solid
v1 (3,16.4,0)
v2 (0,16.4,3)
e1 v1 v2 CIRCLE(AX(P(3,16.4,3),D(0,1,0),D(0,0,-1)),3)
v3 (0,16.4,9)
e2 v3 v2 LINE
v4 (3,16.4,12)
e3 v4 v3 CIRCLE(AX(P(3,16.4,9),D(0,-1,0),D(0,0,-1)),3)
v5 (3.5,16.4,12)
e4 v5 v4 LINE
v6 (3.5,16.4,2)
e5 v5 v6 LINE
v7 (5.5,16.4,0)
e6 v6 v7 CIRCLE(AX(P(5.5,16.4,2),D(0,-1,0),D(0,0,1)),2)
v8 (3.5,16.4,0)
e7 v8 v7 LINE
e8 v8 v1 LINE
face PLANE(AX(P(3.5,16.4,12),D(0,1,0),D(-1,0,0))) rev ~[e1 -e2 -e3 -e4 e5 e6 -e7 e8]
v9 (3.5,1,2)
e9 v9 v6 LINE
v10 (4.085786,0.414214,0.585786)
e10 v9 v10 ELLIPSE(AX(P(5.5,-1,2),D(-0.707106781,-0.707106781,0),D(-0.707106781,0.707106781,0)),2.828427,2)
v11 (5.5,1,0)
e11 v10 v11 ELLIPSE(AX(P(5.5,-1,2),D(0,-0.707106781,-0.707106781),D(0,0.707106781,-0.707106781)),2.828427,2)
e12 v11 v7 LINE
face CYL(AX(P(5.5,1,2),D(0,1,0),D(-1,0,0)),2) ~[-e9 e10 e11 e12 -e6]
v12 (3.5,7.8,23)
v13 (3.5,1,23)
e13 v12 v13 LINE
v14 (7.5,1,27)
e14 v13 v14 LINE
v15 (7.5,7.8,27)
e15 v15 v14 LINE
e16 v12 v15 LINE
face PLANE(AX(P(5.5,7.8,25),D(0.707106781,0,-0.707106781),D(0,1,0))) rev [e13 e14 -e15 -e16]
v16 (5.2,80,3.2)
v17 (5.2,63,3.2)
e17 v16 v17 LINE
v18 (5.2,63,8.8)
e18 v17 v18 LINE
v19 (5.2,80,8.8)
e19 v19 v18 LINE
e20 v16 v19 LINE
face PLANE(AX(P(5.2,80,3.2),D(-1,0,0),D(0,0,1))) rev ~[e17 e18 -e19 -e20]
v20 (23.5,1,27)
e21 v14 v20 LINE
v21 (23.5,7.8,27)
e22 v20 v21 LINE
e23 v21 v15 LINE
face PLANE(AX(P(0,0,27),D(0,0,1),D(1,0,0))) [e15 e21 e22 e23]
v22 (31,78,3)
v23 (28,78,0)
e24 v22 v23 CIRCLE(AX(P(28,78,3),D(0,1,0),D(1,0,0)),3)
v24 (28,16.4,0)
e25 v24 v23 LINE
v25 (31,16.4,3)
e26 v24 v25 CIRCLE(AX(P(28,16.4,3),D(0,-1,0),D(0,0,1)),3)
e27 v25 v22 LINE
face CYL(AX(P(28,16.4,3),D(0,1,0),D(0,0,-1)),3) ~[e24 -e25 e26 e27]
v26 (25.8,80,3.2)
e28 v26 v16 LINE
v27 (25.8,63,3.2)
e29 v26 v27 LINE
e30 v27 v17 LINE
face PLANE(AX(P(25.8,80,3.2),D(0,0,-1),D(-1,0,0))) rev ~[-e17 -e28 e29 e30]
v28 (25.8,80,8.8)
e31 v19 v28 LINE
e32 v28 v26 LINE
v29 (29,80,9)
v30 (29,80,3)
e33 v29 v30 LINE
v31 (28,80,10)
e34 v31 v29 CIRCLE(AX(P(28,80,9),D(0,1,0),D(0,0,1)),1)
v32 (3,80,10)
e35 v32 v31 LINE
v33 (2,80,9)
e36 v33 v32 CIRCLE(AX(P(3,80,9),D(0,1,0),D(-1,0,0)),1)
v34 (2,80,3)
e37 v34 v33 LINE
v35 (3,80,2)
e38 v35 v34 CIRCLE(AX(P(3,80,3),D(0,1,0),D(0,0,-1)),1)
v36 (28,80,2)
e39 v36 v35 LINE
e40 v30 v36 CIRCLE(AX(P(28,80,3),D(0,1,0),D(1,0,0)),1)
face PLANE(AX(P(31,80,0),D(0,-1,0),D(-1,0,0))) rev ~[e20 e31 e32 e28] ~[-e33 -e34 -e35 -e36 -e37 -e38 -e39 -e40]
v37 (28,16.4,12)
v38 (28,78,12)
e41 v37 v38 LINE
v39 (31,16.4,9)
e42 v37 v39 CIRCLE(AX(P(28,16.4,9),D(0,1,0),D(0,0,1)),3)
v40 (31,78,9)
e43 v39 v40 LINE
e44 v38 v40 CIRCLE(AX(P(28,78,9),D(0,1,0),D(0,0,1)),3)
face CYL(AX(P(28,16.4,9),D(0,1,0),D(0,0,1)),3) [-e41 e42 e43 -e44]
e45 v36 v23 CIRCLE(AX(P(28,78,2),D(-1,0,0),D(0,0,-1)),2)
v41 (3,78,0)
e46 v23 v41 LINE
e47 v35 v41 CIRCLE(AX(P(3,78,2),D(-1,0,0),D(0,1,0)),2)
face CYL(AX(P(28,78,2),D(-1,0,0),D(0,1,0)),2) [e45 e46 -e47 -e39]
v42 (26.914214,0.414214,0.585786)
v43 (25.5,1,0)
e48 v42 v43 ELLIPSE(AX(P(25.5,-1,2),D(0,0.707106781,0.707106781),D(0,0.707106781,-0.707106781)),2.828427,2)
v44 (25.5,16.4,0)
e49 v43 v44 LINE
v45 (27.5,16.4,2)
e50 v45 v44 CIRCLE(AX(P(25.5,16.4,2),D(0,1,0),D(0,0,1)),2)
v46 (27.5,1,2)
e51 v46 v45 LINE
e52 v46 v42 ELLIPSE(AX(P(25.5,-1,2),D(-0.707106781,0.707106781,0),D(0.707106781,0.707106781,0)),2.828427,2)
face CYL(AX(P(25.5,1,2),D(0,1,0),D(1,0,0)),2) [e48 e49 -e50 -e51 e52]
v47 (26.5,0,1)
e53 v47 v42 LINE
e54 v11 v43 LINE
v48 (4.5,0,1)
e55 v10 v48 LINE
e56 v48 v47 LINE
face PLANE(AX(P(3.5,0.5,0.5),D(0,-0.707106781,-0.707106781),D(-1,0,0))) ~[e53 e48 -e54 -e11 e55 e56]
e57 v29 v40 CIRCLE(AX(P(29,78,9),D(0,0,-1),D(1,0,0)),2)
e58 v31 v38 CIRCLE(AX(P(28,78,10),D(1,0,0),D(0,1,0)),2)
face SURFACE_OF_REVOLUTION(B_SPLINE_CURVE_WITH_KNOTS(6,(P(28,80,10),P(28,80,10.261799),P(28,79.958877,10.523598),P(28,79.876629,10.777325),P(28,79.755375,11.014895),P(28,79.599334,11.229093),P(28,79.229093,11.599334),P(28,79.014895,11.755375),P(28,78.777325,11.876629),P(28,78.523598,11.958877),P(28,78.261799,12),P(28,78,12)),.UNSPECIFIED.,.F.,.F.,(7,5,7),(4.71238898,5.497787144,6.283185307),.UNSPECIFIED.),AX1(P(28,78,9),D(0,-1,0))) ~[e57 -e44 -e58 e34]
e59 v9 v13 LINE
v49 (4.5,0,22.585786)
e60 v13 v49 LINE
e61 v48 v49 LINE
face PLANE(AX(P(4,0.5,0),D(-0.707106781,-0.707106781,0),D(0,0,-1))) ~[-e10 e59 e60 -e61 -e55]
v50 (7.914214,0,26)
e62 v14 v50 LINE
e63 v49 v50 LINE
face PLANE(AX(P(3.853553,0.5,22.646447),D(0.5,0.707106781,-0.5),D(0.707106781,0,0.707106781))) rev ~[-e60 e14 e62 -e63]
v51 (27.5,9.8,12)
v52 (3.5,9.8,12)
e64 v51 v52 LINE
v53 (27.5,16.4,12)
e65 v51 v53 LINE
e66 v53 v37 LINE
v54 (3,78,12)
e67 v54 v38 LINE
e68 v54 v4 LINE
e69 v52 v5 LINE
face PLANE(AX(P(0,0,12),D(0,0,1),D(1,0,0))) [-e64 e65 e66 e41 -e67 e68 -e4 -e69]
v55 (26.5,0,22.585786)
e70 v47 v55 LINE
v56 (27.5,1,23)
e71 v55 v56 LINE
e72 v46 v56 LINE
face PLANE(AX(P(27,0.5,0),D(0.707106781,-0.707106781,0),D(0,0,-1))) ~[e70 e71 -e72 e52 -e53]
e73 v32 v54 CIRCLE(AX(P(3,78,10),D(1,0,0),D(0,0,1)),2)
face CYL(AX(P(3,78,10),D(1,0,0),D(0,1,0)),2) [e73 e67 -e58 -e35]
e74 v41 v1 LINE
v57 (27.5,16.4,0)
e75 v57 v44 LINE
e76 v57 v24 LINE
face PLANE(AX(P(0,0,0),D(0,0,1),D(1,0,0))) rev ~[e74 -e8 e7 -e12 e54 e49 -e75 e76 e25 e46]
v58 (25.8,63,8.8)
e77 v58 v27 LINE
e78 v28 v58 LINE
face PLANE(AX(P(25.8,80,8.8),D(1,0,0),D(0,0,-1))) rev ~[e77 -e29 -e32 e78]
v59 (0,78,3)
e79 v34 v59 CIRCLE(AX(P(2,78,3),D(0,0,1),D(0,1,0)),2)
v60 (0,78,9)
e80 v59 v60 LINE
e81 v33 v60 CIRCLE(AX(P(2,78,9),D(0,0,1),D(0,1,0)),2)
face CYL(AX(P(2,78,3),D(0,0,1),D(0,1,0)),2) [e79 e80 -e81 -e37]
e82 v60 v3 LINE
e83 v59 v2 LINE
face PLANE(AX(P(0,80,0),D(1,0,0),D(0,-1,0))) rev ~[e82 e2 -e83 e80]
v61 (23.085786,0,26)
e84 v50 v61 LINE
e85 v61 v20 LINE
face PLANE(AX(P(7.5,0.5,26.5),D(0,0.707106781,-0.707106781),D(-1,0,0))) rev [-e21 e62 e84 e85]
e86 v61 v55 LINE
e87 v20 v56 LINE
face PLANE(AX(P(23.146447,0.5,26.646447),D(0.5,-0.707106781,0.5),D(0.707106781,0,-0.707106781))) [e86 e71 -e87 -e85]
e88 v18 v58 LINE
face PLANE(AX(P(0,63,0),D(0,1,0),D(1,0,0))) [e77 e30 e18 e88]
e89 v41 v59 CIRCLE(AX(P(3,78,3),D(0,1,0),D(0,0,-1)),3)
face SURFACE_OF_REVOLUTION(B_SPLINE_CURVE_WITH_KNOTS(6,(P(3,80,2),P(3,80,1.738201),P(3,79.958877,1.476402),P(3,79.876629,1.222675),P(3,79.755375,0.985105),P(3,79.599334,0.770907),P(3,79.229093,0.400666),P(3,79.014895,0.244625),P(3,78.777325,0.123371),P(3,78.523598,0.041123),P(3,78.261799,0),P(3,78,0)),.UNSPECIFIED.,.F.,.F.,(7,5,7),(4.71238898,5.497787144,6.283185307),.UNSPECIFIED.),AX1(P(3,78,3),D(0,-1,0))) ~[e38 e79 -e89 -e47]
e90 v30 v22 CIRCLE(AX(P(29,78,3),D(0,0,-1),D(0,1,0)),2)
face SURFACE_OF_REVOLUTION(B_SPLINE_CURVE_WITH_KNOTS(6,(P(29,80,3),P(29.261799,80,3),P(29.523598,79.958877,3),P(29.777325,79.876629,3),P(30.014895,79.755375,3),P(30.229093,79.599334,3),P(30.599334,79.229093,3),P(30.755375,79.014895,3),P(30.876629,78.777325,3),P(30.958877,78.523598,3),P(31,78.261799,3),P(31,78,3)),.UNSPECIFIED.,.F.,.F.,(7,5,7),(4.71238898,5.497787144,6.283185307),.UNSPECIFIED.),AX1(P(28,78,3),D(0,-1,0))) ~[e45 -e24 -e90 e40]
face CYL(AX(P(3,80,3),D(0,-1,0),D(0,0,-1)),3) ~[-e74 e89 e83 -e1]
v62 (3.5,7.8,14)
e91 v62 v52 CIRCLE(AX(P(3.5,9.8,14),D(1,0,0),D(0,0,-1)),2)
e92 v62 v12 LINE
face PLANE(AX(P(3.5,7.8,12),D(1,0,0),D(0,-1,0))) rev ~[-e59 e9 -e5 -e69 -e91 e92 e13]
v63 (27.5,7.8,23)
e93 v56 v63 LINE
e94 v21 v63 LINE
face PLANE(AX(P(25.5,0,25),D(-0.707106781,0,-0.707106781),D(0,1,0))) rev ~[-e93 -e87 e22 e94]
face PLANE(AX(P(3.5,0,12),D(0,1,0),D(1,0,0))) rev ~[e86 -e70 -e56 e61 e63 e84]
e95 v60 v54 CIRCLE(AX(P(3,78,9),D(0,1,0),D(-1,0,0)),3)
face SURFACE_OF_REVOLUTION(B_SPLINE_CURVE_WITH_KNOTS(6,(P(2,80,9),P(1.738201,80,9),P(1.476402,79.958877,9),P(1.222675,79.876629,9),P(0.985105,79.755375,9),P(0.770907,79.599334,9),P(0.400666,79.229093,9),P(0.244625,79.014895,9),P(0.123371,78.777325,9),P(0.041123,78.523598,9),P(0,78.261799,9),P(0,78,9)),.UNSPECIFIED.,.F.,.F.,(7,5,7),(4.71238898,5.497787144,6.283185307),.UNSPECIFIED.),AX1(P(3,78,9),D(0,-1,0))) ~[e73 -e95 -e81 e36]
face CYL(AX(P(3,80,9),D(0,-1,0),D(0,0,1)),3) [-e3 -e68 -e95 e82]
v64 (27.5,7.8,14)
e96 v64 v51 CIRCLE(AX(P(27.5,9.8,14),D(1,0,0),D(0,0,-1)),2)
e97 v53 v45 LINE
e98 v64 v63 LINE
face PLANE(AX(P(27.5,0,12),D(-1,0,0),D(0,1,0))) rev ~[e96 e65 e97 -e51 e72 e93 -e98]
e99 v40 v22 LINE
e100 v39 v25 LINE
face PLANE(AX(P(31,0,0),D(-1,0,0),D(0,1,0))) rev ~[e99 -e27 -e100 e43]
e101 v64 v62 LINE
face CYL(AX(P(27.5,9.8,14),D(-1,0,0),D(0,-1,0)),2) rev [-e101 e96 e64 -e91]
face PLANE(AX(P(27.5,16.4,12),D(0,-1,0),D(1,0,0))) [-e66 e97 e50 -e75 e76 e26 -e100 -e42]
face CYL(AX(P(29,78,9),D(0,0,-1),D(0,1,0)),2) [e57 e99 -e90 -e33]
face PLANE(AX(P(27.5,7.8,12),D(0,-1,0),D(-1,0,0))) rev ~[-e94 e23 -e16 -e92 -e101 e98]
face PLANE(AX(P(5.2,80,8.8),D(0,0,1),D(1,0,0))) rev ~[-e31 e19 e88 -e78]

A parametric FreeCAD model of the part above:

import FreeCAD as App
import Part
import Sketcher


def edges_at(feature, points):
    """Names of the edges that pass closest to the given points."""
    edges = feature.Shape.Edges
    near = lambda p: min(range(len(edges)), key=lambda i: edges[i].distToShape(Part.Vertex(*p))[0])
    return sorted({f"Edge{near(p) + 1}" for p in points})

doc = App.newDocument("Part")
body = doc.addObject("PartDesign::Body", "Body")

sketch1 = body.newObject("Sketcher::SketchObject", "Sketch")
sketch1.AttachmentSupport = (doc.getObject("XY_Plane"), [""])
sketch1.MapMode = "FlatFace"
sketch1.addGeometry(Part.LineSegment(App.Vector(0, 80, 0), App.Vector(0, 0, 0)), False)
sketch1.addGeometry(Part.LineSegment(App.Vector(0, 0, 0), App.Vector(31, 0, 0)), False)
sketch1.addGeometry(Part.LineSegment(App.Vector(31, 0, 0), App.Vector(31, 80, 0)), False)
sketch1.addGeometry(Part.LineSegment(App.Vector(31, 80, 0), App.Vector(0, 80, 0)), False)
sketch1.addConstraint(Sketcher.Constraint("Coincident", 0, 2, 1, 1))
sketch1.addConstraint(Sketcher.Constraint("Coincident", 1, 2, 2, 1))
sketch1.addConstraint(Sketcher.Constraint("Coincident", 2, 2, 3, 1))
sketch1.addConstraint(Sketcher.Constraint("Coincident", 3, 2, 0, 1))
sketch1.addConstraint(Sketcher.Constraint("Vertical", 0))
sketch1.addConstraint(Sketcher.Constraint("Horizontal", 1))
sketch1.addConstraint(Sketcher.Constraint("Vertical", 2))
sketch1.addConstraint(Sketcher.Constraint("Horizontal", 3))
sketch1.addConstraint(Sketcher.Constraint("Coincident", 0, 2, -1, 1))
sketch1.addConstraint(Sketcher.Constraint("DistanceX", 1, 1, 1, 2, 31.0))
sketch1.addConstraint(Sketcher.Constraint("DistanceY", 0, 2, 0, 1, 80.0))
pad1 = body.newObject("PartDesign::Pad", "Pad")
pad1.Profile = sketch1
pad1.Length = 12

sketch2 = body.newObject("Sketcher::SketchObject", "Sketch001")
sketch2.AttachmentSupport = (doc.getObject("XY_Plane"), [""])
sketch2.MapMode = "FlatFace"
sketch2.AttachmentOffset = App.Placement(App.Vector(0, 0, 12), App.Rotation())
sketch2.addGeometry(Part.LineSegment(App.Vector(3.5, 16.4, 0), App.Vector(0, 16.4, 0)), False)
sketch2.addGeometry(Part.LineSegment(App.Vector(0, 16.4, 0), App.Vector(0, 0, 0)), False)
sketch2.addGeometry(Part.LineSegment(App.Vector(0, 0, 0), App.Vector(3.5, 0, 0)), False)
sketch2.addGeometry(Part.LineSegment(App.Vector(3.5, 0, 0), App.Vector(3.5, 16.4, 0)), False)
sketch2.addGeometry(Part.LineSegment(App.Vector(27.5, 16.4, 0), App.Vector(27.5, 0, 0)), False)
sketch2.addGeometry(Part.LineSegment(App.Vector(27.5, 0, 0), App.Vector(31, 0, 0)), False)
sketch2.addGeometry(Part.LineSegment(App.Vector(31, 0, 0), App.Vector(31, 16.4, 0)), False)
sketch2.addGeometry(Part.LineSegment(App.Vector(31, 16.4, 0), App.Vector(27.5, 16.4, 0)), False)
sketch2.addConstraint(Sketcher.Constraint("Coincident", 0, 2, 1, 1))
sketch2.addConstraint(Sketcher.Constraint("Coincident", 1, 2, 2, 1))
sketch2.addConstraint(Sketcher.Constraint("Coincident", 2, 2, 3, 1))
sketch2.addConstraint(Sketcher.Constraint("Coincident", 3, 2, 0, 1))
sketch2.addConstraint(Sketcher.Constraint("Coincident", 4, 2, 5, 1))
sketch2.addConstraint(Sketcher.Constraint("Coincident", 5, 2, 6, 1))
sketch2.addConstraint(Sketcher.Constraint("Coincident", 6, 2, 7, 1))
sketch2.addConstraint(Sketcher.Constraint("Coincident", 7, 2, 4, 1))
sketch2.addConstraint(Sketcher.Constraint("Horizontal", 0))
sketch2.addConstraint(Sketcher.Constraint("Vertical", 1))
sketch2.addConstraint(Sketcher.Constraint("Horizontal", 2))
sketch2.addConstraint(Sketcher.Constraint("Vertical", 3))
sketch2.addConstraint(Sketcher.Constraint("Vertical", 4))
sketch2.addConstraint(Sketcher.Constraint("Horizontal", 5))
sketch2.addConstraint(Sketcher.Constraint("Vertical", 6))
sketch2.addConstraint(Sketcher.Constraint("Horizontal", 7))
sketch2.addConstraint(Sketcher.Constraint("Coincident", 1, 2, -1, 1))
sketch2.addConstraint(Sketcher.Constraint("PointOnObject", 4, 2, -1))
sketch2.addConstraint(Sketcher.Constraint("Horizontal", 3, 2, 6, 2))
sketch2.addConstraint(Sketcher.Constraint("Equal", 2, 5))
sketch2.addConstraint(Sketcher.Constraint("DistanceY", 1, 2, 1, 1, 16.4))
sketch2.addConstraint(Sketcher.Constraint("DistanceX", 2, 2, 4, 2, 24.0))
sketch2.addConstraint(Sketcher.Constraint("DistanceX", 0, 2, 0, 1, 3.5))
pocket1 = body.newObject("PartDesign::Pocket", "Pocket")
pocket1.Profile = sketch2
pocket1.Length = 12

sketch3 = body.newObject("Sketcher::SketchObject", "Sketch002")
sketch3.AttachmentSupport = (doc.getObject("XY_Plane"), [""])
sketch3.MapMode = "FlatFace"
sketch3.AttachmentOffset = App.Placement(App.Vector(0, 0, 12), App.Rotation())
sketch3.addGeometry(Part.LineSegment(App.Vector(4, 8, 0), App.Vector(4, 0, 0)), False)
sketch3.addGeometry(Part.LineSegment(App.Vector(4, 0, 0), App.Vector(28, 0, 0)), False)
sketch3.addGeometry(Part.LineSegment(App.Vector(28, 0, 0), App.Vector(28, 8, 0)), False)
sketch3.addGeometry(Part.LineSegment(App.Vector(28, 8, 0), App.Vector(4, 8, 0)), False)
sketch3.addConstraint(Sketcher.Constraint("Coincident", 0, 2, 1, 1))
sketch3.addConstraint(Sketcher.Constraint("Coincident", 1, 2, 2, 1))
sketch3.addConstraint(Sketcher.Constraint("Coincident", 2, 2, 3, 1))
sketch3.addConstraint(Sketcher.Constraint("Coincident", 3, 2, 0, 1))
sketch3.addConstraint(Sketcher.Constraint("Vertical", 0))
sketch3.addConstraint(Sketcher.Constraint("Horizontal", 1))
sketch3.addConstraint(Sketcher.Constraint("Vertical", 2))
sketch3.addConstraint(Sketcher.Constraint("Horizontal", 3))
sketch3.addConstraint(Sketcher.Constraint("PointOnObject", 0, 2, -1))
sketch3.addConstraint(Sketcher.Constraint("DistanceY", 0, 2, 0, 1, 7.8))
sketch3.addConstraint(Sketcher.Constraint("DistanceX", 1, 1, 1, 2, 24.0))
sketch3.addConstraint(Sketcher.Constraint("DistanceX", -1, 1, 0, 2, 3.5))
pad2 = body.newObject("PartDesign::Pad", "Pad001")
pad2.Profile = sketch3
pad2.Length = 15

sketch4 = body.newObject("Sketcher::SketchObject", "Sketch003")
sketch4.AttachmentSupport = (doc.getObject("XZ_Plane"), [""])
sketch4.MapMode = "FlatFace"
sketch4.AttachmentOffset = App.Placement(App.Vector(0, 0, -80), App.Rotation())
sketch4.addGeometry(Part.LineSegment(App.Vector(5, 3, 0), App.Vector(5, 9, 0)), False)
sketch4.addGeometry(Part.LineSegment(App.Vector(5, 9, 0), App.Vector(26, 9, 0)), False)
sketch4.addGeometry(Part.LineSegment(App.Vector(26, 9, 0), App.Vector(26, 3, 0)), False)
sketch4.addGeometry(Part.LineSegment(App.Vector(26, 3, 0), App.Vector(5, 3, 0)), False)
sketch4.addConstraint(Sketcher.Constraint("Coincident", 0, 2, 1, 1))
sketch4.addConstraint(Sketcher.Constraint("Coincident", 1, 2, 2, 1))
sketch4.addConstraint(Sketcher.Constraint("Coincident", 2, 2, 3, 1))
sketch4.addConstraint(Sketcher.Constraint("Coincident", 3, 2, 0, 1))
sketch4.addConstraint(Sketcher.Constraint("Vertical", 0))
sketch4.addConstraint(Sketcher.Constraint("Horizontal", 1))
sketch4.addConstraint(Sketcher.Constraint("Vertical", 2))
sketch4.addConstraint(Sketcher.Constraint("Horizontal", 3))
sketch4.addConstraint(Sketcher.Constraint("DistanceX", 1, 1, 1, 2, 20.6))
sketch4.addConstraint(Sketcher.Constraint("DistanceY", 0, 1, 0, 2, 5.6))
sketch4.addConstraint(Sketcher.Constraint("DistanceX", -1, 1, 0, 2, 5.2))
sketch4.addConstraint(Sketcher.Constraint("DistanceY", -1, 1, 0, 2, 8.8))
pocket2 = body.newObject("PartDesign::Pocket", "Pocket001")
pocket2.Profile = sketch4
pocket2.Length = 17
pocket2.Reversed = True
doc.recompute()

chamfer = body.newObject("PartDesign::Chamfer", "Chamfer")
chamfer.Base = (pocket2, edges_at(pocket2, [(3.5, 3.9, 27), (27.5, 3.9, 27)]))
chamfer.Size = 4
doc.recompute()

chamfer2 = body.newObject("PartDesign::Chamfer", "Chamfer001")
chamfer2.Base = (chamfer, edges_at(chamfer, [
    (3.5, 0, 11.5),
    (5.5, 0, 25),
    (15.5, 0, 27),
    (25.5, 0, 25),
    (27.5, 0, 11.5),
    (15.5, 0, 0),
]))
chamfer2.Size = 1
doc.recompute()

fillet = body.newObject("PartDesign::Fillet", "Fillet")
fillet.Base = (chamfer2, edges_at(chamfer2, [(15.5, 7.8, 12)]))
fillet.Radius = 2
doc.recompute()

fillet2 = body.newObject("PartDesign::Fillet", "Fillet001")
fillet2.Base = (fillet, edges_at(fillet, [
    (0, 48.2, 12),
    (31, 48.2, 12),
    (31, 48.2, 0),
    (0, 48.2, 0),
]))
fillet2.Radius = 3
doc.recompute()

fillet3 = body.newObject("PartDesign::Fillet", "Fillet002")
fillet3.Base = (fillet2, edges_at(fillet2, [
    (0, 80, 6),
    (0.879, 80, 0.879),
    (15.5, 80, 0),
    (30.121, 80, 0.879),
    (31, 80, 6),
    (30.121, 80, 11.121),
    (15.5, 80, 12),
    (0.879, 80, 11.121),
]))
fillet3.Radius = 2
doc.recompute()

fillet4 = body.newObject("PartDesign::Fillet", "Fillet003")
fillet4.Base = (fillet3, edges_at(fillet3, [(27.5, 8.7, 0), (3.5, 8.7, 0)]))
fillet4.Radius = 2

doc.recompute()
